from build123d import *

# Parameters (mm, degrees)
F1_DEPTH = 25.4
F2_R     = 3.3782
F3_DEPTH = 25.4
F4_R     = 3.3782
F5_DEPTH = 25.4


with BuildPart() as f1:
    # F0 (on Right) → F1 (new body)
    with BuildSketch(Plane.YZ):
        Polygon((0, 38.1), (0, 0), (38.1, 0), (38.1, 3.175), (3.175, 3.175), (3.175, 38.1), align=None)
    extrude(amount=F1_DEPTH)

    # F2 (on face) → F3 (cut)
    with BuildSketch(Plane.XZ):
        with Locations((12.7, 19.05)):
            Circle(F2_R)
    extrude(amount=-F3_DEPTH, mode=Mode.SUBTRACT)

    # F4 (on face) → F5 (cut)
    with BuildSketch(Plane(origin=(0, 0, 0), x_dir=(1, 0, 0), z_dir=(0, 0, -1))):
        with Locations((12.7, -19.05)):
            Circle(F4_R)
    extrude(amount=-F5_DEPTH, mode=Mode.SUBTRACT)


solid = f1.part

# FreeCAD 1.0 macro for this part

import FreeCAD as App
import Part
import Sketcher
from FreeCAD import Vector
Q = App.Units.Quantity

doc = App.newDocument("Part")
body = doc.addObject("PartDesign::Body", "Body")

sketch1 = doc.addObject("Sketcher::SketchObject", "Sketch")
body.addObject(sketch1)
sketch1.AttachmentSupport = (doc.YZ_Plane, [""])
sketch1.MapMode = "FlatFace"
sketch1.addGeometry([
    Part.LineSegment(Vector(0, 38.1, 0), Vector(0, 0, 0)),
    Part.LineSegment(Vector(0, 0, 0), Vector(38.1, 0, 0)),
    Part.LineSegment(Vector(38.1, 0, 0), Vector(38.1, 3.2, 0)),
    Part.LineSegment(Vector(38.1, 3.2, 0), Vector(3.2, 3.2, 0)),
    Part.LineSegment(Vector(3.2, 3.2, 0), Vector(3.2, 38.1, 0)),
    Part.LineSegment(Vector(3.2, 38.1, 0), Vector(0, 38.1, 0)),
], False)
sketch1.addConstraint([
    Sketcher.Constraint("Coincident", 0, 2, 1, 1),
    Sketcher.Constraint("Coincident", 1, 2, 2, 1),
    Sketcher.Constraint("Coincident", 2, 2, 3, 1),
    Sketcher.Constraint("Coincident", 3, 2, 4, 1),
    Sketcher.Constraint("Coincident", 4, 2, 5, 1),
    Sketcher.Constraint("Coincident", 5, 2, 0, 1),
    Sketcher.Constraint("Vertical", 0),
    Sketcher.Constraint("Horizontal", 1),
    Sketcher.Constraint("Vertical", 2),
    Sketcher.Constraint("Horizontal", 3),
    Sketcher.Constraint("Vertical", 4),
    Sketcher.Constraint("Horizontal", 5),
    Sketcher.Constraint("Coincident", 0, 2, -1, 1),
    Sketcher.Constraint("Equal", 1, 0),
    Sketcher.Constraint("Equal", 5, 2),
    Sketcher.Constraint("DistanceX", 1, 1, 1, 2, Q("1.5 in")),
    Sketcher.Constraint("DistanceX", 3, 2, 3, 1, Q("1.375 in")),
])
pad1 = doc.addObject("PartDesign::Pad", "Pad")
body.addObject(pad1)
pad1.Profile = sketch1
pad1.Length = Q("1 in")

sketch2 = doc.addObject("Sketcher::SketchObject", "Sketch001")
body.addObject(sketch2)
sketch2.AttachmentSupport = (doc.XZ_Plane, [""])
sketch2.MapMode = "FlatFace"
sketch2.addGeometry(Part.Circle(Vector(12.7, 19.1, 0), Vector(0, 0, 1), 3.4), False)
sketch2.addConstraint([
    Sketcher.Constraint("Diameter", 0, Q("0.266 in")),
    Sketcher.Constraint("DistanceX", -1, 1, 0, 3, Q("0.5 in")),
    Sketcher.Constraint("DistanceY", -1, 1, 0, 3, Q("0.75 in")),
])
pocket1 = doc.addObject("PartDesign::Pocket", "Pocket")
body.addObject(pocket1)
pocket1.Profile = sketch2
pocket1.Length = Q("1 in")

sketch3 = doc.addObject("Sketcher::SketchObject", "Sketch002")
body.addObject(sketch3)
sketch3.AttachmentSupport = (doc.XY_Plane, [""])
sketch3.MapMode = "FlatFace"
sketch3.addGeometry(Part.Circle(Vector(12.7, 19.1, 0), Vector(0, 0, 1), 3.4), False)
sketch3.addConstraint([
    Sketcher.Constraint("Diameter", 0, Q("0.266 in")),
    Sketcher.Constraint("DistanceX", -1, 1, 0, 3, Q("0.5 in")),
    Sketcher.Constraint("DistanceY", -1, 1, 0, 3, Q("0.75 in")),
])
pocket2 = doc.addObject("PartDesign::Pocket", "Pocket001")
body.addObject(pocket2)
pocket2.Profile = sketch3
pocket2.Length = Q("1 in")
pocket2.Reversed = True

doc.recompute()
